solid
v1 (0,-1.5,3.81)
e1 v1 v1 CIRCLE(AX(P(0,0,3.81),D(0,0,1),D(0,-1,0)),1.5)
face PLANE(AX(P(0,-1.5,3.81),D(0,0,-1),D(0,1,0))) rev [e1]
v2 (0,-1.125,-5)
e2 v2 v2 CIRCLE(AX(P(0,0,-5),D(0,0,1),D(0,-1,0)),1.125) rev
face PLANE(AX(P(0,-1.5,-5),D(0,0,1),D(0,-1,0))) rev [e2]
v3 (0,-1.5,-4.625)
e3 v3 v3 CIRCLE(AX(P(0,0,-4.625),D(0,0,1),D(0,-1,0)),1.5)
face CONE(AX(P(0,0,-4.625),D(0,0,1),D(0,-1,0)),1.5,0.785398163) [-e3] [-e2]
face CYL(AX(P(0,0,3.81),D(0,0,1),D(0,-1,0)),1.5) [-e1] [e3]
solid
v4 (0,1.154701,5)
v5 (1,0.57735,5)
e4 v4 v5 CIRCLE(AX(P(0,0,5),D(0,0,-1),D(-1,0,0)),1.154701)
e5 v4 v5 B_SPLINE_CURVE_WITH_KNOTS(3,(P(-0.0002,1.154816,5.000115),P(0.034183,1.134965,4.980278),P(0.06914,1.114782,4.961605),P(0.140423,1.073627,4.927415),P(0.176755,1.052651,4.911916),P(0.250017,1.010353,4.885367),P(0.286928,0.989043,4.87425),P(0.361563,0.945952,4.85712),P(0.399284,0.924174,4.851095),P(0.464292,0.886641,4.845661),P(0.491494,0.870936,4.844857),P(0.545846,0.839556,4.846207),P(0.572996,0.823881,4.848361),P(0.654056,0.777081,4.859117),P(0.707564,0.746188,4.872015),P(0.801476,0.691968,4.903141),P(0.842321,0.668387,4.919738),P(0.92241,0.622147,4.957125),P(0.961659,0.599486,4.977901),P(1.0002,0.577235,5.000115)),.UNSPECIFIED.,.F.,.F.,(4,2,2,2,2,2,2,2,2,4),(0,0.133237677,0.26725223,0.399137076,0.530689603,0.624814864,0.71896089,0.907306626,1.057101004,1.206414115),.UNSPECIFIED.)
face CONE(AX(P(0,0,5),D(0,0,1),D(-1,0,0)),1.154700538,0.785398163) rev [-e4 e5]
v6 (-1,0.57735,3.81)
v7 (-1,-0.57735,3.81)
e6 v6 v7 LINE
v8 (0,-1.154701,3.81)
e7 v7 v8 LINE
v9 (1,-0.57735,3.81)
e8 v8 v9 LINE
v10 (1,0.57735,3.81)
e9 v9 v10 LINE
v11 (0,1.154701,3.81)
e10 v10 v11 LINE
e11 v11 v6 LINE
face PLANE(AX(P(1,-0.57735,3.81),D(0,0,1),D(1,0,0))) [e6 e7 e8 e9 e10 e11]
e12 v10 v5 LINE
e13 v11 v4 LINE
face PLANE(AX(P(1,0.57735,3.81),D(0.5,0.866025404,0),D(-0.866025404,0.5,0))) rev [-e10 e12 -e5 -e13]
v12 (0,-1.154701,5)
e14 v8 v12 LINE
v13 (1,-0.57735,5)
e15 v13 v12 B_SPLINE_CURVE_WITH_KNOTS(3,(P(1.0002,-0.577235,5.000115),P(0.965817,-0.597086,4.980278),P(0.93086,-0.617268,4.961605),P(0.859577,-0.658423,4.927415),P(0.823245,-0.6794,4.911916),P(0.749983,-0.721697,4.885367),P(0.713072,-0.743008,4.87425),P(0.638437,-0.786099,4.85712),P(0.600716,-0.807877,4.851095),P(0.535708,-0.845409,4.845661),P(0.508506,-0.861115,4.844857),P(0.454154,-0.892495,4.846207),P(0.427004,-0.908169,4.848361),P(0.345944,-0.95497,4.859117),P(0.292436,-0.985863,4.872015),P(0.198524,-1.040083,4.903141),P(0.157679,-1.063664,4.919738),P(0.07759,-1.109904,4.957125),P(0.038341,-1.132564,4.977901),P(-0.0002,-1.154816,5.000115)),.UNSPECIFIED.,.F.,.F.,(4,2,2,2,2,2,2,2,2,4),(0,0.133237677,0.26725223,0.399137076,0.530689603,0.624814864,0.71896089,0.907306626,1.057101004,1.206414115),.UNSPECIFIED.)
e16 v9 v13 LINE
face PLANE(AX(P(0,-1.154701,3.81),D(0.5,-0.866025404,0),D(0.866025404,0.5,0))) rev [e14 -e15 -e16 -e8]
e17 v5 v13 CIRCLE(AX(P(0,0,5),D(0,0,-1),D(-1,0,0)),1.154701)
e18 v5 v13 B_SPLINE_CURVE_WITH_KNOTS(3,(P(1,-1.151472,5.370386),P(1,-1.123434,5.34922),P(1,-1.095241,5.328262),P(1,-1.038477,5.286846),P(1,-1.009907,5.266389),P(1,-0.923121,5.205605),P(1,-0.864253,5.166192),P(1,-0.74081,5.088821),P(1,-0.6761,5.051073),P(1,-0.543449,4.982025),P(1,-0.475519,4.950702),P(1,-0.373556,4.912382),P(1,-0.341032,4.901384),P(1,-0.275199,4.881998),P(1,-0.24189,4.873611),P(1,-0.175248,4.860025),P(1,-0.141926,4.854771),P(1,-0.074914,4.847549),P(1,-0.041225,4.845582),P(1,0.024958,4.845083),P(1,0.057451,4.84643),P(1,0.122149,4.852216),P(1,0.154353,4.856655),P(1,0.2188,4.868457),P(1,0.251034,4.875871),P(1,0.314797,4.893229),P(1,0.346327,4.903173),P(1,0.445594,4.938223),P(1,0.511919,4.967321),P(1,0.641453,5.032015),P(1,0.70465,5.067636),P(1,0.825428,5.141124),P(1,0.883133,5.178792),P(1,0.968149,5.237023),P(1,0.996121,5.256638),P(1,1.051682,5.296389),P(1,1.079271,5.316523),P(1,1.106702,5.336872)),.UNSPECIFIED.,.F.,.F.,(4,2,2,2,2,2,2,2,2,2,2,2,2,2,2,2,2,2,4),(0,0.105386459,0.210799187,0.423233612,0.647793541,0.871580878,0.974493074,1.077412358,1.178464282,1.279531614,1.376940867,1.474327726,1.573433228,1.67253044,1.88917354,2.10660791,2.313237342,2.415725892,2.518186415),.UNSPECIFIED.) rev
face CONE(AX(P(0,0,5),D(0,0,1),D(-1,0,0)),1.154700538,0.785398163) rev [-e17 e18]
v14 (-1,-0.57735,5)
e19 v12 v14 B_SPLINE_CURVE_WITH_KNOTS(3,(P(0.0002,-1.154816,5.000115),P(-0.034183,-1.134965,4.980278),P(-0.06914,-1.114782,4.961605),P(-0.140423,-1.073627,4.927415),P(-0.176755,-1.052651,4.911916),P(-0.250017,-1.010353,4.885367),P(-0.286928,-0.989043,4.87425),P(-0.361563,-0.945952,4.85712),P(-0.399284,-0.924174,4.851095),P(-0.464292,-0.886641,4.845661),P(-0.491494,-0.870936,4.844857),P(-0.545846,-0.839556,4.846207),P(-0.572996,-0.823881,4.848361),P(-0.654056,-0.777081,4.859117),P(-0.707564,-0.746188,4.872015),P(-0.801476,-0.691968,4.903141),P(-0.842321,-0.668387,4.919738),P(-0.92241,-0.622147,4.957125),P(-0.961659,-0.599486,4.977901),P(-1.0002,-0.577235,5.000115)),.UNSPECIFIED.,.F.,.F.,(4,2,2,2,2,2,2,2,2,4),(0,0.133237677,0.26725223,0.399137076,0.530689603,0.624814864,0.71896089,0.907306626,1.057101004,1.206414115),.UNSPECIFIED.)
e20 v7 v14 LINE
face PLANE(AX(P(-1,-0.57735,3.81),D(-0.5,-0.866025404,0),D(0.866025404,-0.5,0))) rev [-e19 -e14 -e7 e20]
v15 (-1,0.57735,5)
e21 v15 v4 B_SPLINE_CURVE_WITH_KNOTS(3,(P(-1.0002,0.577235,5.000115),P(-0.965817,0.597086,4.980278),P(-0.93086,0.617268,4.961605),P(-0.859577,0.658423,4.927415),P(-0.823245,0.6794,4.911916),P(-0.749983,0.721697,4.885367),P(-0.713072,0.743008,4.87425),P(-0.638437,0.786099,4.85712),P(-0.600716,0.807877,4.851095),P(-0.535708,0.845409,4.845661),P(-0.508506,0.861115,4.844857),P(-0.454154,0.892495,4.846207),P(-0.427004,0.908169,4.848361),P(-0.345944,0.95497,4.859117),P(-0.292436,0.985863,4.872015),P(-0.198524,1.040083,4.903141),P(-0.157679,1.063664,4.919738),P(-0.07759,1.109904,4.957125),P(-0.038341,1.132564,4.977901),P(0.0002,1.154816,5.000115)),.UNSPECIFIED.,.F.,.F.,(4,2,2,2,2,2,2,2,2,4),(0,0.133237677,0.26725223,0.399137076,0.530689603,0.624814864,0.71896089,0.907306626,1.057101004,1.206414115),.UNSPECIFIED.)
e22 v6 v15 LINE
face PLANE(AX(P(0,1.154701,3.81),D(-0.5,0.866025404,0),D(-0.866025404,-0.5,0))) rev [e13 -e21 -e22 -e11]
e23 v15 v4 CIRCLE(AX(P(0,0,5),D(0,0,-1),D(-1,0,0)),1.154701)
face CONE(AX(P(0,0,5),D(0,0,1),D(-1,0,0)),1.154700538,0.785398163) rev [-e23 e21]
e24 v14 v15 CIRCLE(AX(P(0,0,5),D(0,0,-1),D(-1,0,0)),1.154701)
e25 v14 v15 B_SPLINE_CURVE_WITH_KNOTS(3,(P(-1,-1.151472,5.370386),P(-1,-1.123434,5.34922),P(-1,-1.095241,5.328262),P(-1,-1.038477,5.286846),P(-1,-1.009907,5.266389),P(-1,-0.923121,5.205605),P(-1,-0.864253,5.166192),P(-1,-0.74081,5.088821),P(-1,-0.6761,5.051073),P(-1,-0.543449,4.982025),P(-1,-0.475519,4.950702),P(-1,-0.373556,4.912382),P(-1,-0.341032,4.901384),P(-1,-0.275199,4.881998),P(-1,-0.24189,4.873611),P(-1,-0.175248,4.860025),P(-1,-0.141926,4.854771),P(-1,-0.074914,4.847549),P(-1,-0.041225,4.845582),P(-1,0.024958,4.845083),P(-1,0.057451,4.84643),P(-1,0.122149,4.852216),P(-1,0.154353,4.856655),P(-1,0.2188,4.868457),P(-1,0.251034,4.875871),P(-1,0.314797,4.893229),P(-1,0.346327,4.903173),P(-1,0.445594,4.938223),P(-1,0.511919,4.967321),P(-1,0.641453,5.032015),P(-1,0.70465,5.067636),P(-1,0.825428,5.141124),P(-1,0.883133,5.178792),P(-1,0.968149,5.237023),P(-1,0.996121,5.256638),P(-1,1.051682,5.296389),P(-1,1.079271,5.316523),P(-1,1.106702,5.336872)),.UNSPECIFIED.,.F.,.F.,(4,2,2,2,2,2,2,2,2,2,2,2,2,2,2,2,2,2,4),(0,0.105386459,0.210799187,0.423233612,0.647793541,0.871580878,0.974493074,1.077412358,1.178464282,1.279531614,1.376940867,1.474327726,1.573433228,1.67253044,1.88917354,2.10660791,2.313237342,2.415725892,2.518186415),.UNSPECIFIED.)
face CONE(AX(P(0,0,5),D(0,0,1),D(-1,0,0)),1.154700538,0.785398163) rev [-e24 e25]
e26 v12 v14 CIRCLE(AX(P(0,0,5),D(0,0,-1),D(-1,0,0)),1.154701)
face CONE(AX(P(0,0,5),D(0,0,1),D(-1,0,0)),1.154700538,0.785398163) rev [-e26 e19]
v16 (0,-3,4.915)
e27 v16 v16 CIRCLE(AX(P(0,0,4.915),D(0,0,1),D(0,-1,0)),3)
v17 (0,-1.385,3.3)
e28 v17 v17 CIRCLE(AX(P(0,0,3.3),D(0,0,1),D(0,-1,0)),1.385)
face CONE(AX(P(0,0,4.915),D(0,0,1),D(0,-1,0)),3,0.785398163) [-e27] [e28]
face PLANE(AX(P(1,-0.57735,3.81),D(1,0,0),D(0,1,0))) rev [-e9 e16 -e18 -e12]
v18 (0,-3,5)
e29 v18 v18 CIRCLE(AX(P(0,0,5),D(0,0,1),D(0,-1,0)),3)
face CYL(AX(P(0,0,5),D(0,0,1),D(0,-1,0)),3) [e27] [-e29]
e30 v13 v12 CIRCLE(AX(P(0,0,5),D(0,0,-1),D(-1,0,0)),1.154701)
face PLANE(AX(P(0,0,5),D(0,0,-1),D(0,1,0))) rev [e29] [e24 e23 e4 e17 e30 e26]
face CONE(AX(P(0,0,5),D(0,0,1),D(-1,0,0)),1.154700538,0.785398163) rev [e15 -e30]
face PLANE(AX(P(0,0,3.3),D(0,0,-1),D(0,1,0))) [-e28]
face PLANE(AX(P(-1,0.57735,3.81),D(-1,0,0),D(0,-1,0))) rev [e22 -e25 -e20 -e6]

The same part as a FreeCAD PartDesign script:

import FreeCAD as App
import Part
import Sketcher
Q = App.Units.Quantity


def edges_at(feature, points):
    """Names of the edges that pass closest to the given points."""
    edges = feature.Shape.Edges
    near = lambda p: min(range(len(edges)), key=lambda i: edges[i].distToShape(Part.Vertex(*p))[0])
    return sorted({f"Edge{near(p) + 1}" for p in points})

doc = App.newDocument("Part")
body = doc.addObject("PartDesign::Body", "Body")

# Sketch on YZ plane
sketch1 = doc.addObject("Sketcher::SketchObject", "Sketch")
body.addObject(sketch1)
sketch1.AttachmentSupport = (doc.YZ_Plane, [""])
sketch1.MapMode = "FlatFace"
sketch1.addGeometry([
    Part.LineSegment(App.Vector(1.5, -5, 0), App.Vector(1.5, 3.8, 0)),
    Part.LineSegment(App.Vector(1.5, 3.8, 0), App.Vector(0, 3.8, 0)),
    Part.LineSegment(App.Vector(0, 3.8, 0), App.Vector(0, -5, 0)),
    Part.LineSegment(App.Vector(0, -5, 0), App.Vector(1.5, -5, 0)),
], False)
sketch1.addConstraint([
    Sketcher.Constraint("Coincident", 0, 2, 1, 1),
    Sketcher.Constraint("Coincident", 1, 2, 2, 1),
    Sketcher.Constraint("Coincident", 2, 2, 3, 1),
    Sketcher.Constraint("Coincident", 3, 2, 0, 1),
    Sketcher.Constraint("Vertical", 0),
    Sketcher.Constraint("Horizontal", 1),
    Sketcher.Constraint("Vertical", 2),
    Sketcher.Constraint("Horizontal", 3),
    Sketcher.Constraint("PointOnObject", 1, 2, -2),
    Sketcher.Constraint("DistanceX", 1, 2, 1, 1, Q("1.5 mm")),
    Sketcher.Constraint("DistanceY", 2, 2, -1, 1, Q("5 mm")),
    Sketcher.Constraint("DistanceY", 0, 1, 0, 2, Q("8.81 mm")),
])
revolution = doc.addObject("PartDesign::Revolution", "Revolution")
body.addObject(revolution)
revolution.Profile = sketch1
revolution.ReferenceAxis = (sketch1, ["V_Axis"])
revolution.Angle = 360
doc.recompute()

chamfer = doc.addObject("PartDesign::Chamfer", "Chamfer")
body.addObject(chamfer)
chamfer.Base = (revolution, edges_at(revolution, [(0, 1.5, -5)]))
chamfer.Size = 0.375
body2 = doc.addObject("PartDesign::Body", "Body001")

# Sketch on YZ plane
sketch2 = doc.addObject("Sketcher::SketchObject", "Sketch001")
body2.addObject(sketch2)
sketch2.AttachmentSupport = (doc.getObject("YZ_Plane001"), [""])
sketch2.MapMode = "FlatFace"
sketch2.addGeometry([
    Part.LineSegment(App.Vector(3, 4.92, 0), App.Vector(3, 5, 0)),  # 0
    Part.LineSegment(App.Vector(3, 5, 0), App.Vector(0, 5, 0)),  # 1
    Part.LineSegment(App.Vector(0, 5, 0), App.Vector(0, 3.3, 0)),  # 2
    Part.LineSegment(App.Vector(0, 3.3, 0), App.Vector(1.39, 3.3, 0)),  # 3
    Part.LineSegment(App.Vector(1.39, 3.3, 0), App.Vector(3, 4.92, 0)),  # 4
], False)
sketch2.addConstraint([
    Sketcher.Constraint("Coincident", 0, 2, 1, 1),
    Sketcher.Constraint("Coincident", 1, 2, 2, 1),
    Sketcher.Constraint("Coincident", 2, 2, 3, 1),
    Sketcher.Constraint("Coincident", 3, 2, 4, 1),
    Sketcher.Constraint("Coincident", 4, 2, 0, 1),
    Sketcher.Constraint("Vertical", 0),
    Sketcher.Constraint("Horizontal", 1),
    Sketcher.Constraint("Vertical", 2),
    Sketcher.Constraint("Horizontal", 3),
    Sketcher.Constraint("PointOnObject", 1, 2, -2),
    Sketcher.Constraint("DistanceX", 1, 2, 1, 1, Q("3 mm")),
    Sketcher.Constraint("Angle", 4, Q("45 deg")),
    Sketcher.Constraint("DistanceY", 2, 2, 2, 1, Q("1.7 mm")),
    Sketcher.Constraint("DistanceY", -1, 1, 0, 2, Q("5 mm")),
    Sketcher.Constraint("DistanceX", 3, 1, 3, 2, Q("1.385 mm")),
])
revolution2 = doc.addObject("PartDesign::Revolution", "Revolution001")
body2.addObject(revolution2)
revolution2.Profile = sketch2
revolution2.ReferenceAxis = (sketch2, ["V_Axis"])
revolution2.Angle = 360

# Sketch on XY plane
sketch3 = doc.addObject("Sketcher::SketchObject", "Sketch002")
body2.addObject(sketch3)
sketch3.AttachmentSupport = (doc.getObject("XY_Plane001"), [""])
sketch3.MapMode = "FlatFace"
sketch3.AttachmentOffset = App.Placement(App.Vector(0, 0, 5), App.Rotation())
sketch3.addGeometry([
    Part.LineSegment(App.Vector(1, -0.6, 0), App.Vector(1, 0.6, 0)),  # 0
    Part.LineSegment(App.Vector(1, 0.6, 0), App.Vector(0, 1.2, 0)),  # 1
    Part.LineSegment(App.Vector(0, 1.2, 0), App.Vector(-1, 0.6, 0)),  # 2
    Part.LineSegment(App.Vector(-1, 0.6, 0), App.Vector(-1, -0.6, 0)),  # 3
    Part.LineSegment(App.Vector(-1, -0.6, 0), App.Vector(0, -1.2, 0)),  # 4
    Part.LineSegment(App.Vector(0, -1.2, 0), App.Vector(1, -0.6, 0)),  # 5
], False)
sketch3.addConstraint([
    Sketcher.Constraint("Coincident", 0, 2, 1, 1),
    Sketcher.Constraint("Coincident", 1, 2, 2, 1),
    Sketcher.Constraint("Coincident", 2, 2, 3, 1),
    Sketcher.Constraint("Coincident", 3, 2, 4, 1),
    Sketcher.Constraint("Coincident", 4, 2, 5, 1),
    Sketcher.Constraint("Coincident", 5, 2, 0, 1),
    Sketcher.Constraint("Vertical", 0),
    Sketcher.Constraint("Vertical", 3),
    Sketcher.Constraint("Symmetric", 0, 2, 3, 2, -1, 1),
    Sketcher.Constraint("Symmetric", 1, 2, 4, 2, -1, 1),
    Sketcher.Constraint("PointOnObject", 1, 2, -2),
    Sketcher.Constraint("Parallel", 2, 5),
    Sketcher.Constraint("Horizontal", 0, 2, 2, 2),
    Sketcher.Constraint("Angle", 1, Q("150 deg")),
    Sketcher.Constraint("DistanceX", -1, 1, 0, 2, Q("1 mm")),
    Sketcher.Constraint("DistanceY", 0, 1, 0, 2, Q("1.154701 mm")),
])
pocket1 = doc.addObject("PartDesign::Pocket", "Pocket")
body2.addObject(pocket1)
pocket1.Profile = sketch3
pocket1.Length = 1.19

# Sketch on YZ plane
sketch4 = doc.addObject("Sketcher::SketchObject", "Sketch003")
body2.addObject(sketch4)
sketch4.AttachmentSupport = (doc.getObject("YZ_Plane001"), [""])
sketch4.MapMode = "FlatFace"
sketch4.addGeometry([
    Part.LineSegment(App.Vector(0, 5, 0), App.Vector(-1.2, 5, 0)),
    Part.LineSegment(App.Vector(-1.2, 5, 0), App.Vector(0, 3.8, 0)),
    Part.LineSegment(App.Vector(0, 3.8, 0), App.Vector(0, 5, 0)),
], False)
sketch4.addConstraint([
    Sketcher.Constraint("Coincident", 0, 2, 1, 1),
    Sketcher.Constraint("Coincident", 1, 2, 2, 1),
    Sketcher.Constraint("Coincident", 2, 2, 0, 1),
    Sketcher.Constraint("Horizontal", 0),
    Sketcher.Constraint("Vertical", 2),
    Sketcher.Constraint("PointOnObject", 1, 2, -2),
    Sketcher.Constraint("Equal", 0, 2),
    Sketcher.Constraint("DistanceY", -1, 1, 0, 2, Q("5 mm")),
    Sketcher.Constraint("DistanceX", 0, 2, 0, 1, Q("1.154701 mm")),
])
groove = doc.addObject("PartDesign::Groove", "Groove")
body2.addObject(groove)
groove.Profile = sketch4
groove.ReferenceAxis = (sketch4, ["V_Axis"])
groove.Angle = 360

doc.recompute()
